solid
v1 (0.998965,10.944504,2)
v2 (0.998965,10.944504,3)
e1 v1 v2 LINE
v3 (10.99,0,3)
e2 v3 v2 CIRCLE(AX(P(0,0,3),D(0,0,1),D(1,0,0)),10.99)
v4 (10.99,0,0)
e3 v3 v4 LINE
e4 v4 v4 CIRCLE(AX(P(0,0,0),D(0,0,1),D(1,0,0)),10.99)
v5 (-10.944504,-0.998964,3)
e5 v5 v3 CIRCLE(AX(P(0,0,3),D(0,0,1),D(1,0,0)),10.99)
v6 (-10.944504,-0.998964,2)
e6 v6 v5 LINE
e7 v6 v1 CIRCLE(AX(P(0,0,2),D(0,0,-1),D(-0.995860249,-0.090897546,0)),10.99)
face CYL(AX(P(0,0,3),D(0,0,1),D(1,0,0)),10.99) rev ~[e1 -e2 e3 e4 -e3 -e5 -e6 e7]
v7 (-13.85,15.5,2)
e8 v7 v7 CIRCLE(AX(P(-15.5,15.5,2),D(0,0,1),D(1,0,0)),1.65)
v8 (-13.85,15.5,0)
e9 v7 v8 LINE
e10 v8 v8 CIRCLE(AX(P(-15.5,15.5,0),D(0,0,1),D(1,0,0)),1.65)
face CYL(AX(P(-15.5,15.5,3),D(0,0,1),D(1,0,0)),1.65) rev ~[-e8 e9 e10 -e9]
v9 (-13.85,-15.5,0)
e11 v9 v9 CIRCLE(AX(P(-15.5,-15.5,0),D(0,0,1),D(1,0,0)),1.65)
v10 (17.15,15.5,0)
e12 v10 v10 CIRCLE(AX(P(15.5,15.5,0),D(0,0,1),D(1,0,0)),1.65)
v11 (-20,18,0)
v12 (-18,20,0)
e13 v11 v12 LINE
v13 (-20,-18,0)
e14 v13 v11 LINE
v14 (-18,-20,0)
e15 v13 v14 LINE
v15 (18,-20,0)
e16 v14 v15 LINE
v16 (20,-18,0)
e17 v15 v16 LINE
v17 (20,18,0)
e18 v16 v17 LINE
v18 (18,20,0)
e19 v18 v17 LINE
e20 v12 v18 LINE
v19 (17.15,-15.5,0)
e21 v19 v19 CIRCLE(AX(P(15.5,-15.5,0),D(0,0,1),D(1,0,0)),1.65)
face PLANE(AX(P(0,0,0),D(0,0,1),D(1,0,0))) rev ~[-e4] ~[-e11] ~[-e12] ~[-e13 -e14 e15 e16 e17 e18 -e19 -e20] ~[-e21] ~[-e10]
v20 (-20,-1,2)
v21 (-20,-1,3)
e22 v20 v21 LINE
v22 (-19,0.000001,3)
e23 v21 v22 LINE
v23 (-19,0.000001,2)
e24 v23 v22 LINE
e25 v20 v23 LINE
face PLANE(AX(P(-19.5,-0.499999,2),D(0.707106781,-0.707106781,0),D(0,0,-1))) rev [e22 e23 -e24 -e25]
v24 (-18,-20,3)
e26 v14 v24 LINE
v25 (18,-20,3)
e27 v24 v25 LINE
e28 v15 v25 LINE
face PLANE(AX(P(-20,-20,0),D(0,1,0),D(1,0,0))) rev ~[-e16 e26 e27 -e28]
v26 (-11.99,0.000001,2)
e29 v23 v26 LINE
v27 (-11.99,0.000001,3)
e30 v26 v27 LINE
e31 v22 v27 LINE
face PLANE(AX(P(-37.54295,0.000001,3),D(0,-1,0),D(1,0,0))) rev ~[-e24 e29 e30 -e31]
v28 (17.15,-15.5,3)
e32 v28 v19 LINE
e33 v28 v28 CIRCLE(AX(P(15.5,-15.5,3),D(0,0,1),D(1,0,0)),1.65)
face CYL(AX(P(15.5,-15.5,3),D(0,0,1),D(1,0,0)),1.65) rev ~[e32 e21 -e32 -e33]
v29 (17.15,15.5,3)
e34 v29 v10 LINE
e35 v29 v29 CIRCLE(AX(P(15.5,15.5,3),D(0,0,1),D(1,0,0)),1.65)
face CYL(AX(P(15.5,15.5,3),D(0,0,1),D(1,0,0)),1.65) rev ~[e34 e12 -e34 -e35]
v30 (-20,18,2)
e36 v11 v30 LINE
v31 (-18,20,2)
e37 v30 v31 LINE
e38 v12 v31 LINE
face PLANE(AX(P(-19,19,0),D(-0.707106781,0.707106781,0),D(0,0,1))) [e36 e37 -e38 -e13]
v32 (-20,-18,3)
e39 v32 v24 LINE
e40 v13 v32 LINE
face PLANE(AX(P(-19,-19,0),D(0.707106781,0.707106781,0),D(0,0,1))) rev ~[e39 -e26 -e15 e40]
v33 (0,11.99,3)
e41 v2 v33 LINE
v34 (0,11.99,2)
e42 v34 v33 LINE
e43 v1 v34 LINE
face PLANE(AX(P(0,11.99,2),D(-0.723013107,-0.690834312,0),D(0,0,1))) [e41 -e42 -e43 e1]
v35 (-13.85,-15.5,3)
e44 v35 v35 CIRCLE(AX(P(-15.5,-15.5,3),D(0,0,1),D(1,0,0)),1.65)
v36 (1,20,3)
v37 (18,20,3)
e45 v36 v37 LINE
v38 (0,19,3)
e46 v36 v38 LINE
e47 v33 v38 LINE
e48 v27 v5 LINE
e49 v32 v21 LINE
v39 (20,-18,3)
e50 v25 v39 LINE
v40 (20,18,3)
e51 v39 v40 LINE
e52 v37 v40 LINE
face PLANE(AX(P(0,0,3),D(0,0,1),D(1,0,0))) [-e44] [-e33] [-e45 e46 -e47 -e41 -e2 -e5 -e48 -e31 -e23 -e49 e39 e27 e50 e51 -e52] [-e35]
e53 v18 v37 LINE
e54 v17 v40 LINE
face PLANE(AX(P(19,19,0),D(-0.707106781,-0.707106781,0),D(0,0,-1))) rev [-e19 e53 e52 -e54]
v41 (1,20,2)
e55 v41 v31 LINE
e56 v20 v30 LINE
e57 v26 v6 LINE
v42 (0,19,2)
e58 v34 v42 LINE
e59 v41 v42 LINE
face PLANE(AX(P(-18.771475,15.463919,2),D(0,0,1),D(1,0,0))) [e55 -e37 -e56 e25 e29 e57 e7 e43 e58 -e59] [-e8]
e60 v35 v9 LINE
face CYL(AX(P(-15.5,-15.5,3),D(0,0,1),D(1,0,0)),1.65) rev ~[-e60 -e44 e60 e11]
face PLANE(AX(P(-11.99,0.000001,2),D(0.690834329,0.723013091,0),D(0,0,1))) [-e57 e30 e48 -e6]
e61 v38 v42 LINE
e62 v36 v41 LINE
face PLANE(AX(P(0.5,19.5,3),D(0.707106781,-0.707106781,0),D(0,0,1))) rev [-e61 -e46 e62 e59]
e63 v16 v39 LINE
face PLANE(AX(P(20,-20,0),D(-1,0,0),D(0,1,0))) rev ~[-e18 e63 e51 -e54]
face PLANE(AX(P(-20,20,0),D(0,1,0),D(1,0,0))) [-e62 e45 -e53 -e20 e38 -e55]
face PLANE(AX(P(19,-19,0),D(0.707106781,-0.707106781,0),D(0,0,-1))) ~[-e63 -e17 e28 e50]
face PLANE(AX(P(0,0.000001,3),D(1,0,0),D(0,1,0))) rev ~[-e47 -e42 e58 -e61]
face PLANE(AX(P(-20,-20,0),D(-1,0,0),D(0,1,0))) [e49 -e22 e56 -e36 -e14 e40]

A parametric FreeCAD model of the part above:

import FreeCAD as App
import Part
import Sketcher

V = App.Vector
Q = App.Units.Quantity


def edges_at(feature, points):
    """Names of the edges that pass closest to the given points."""
    edges = feature.Shape.Edges
    near = lambda p: min(range(len(edges)), key=lambda i: edges[i].distToShape(Part.Vertex(*p))[0])
    return sorted({f"Edge{near(p) + 1}" for p in points})

doc = App.newDocument("Part")
params = doc.addObject("Spreadsheet::Sheet", "Params")
for row, (alias, value) in enumerate([
    ("sketch1_width", "40 mm"),
    ("pad1_length", "3 mm"),
    ("sketch2_diameter", "3.3 mm"),
    ("sketch2_diameter2", "21.98 mm"),
    ("pocket1_length", "5 mm"),
    ("pocket2_length", "1 mm"),
    ("chamfer_size", "2 mm"),
    ("chamfer2_size", "1 mm"),
], start=1):
    params.set(f"A{row}", alias)
    params.set(f"B{row}", "=" + value)
    params.setAlias(f"B{row}", alias)

body = doc.addObject("PartDesign::Body", "Body")

sketch1 = body.newObject("Sketcher::SketchObject", "Sketch")
sketch1.AttachmentSupport = (doc.getObject("XY_Plane"), [""])
sketch1.MapMode = "FlatFace"
sketch1.addGeometry([
    Part.LineSegment(V(-20, 20, 0), V(-20, -20, 0)),
    Part.LineSegment(V(-20, -20, 0), V(20, -20, 0)),
    Part.LineSegment(V(20, -20, 0), V(20, 20, 0)),
    Part.LineSegment(V(20, 20, 0), V(-20, 20, 0)),
], False)
sketch1.addConstraint([
    Sketcher.Constraint("Coincident", 0, 2, 1, 1),
    Sketcher.Constraint("Coincident", 1, 2, 2, 1),
    Sketcher.Constraint("Coincident", 2, 2, 3, 1),
    Sketcher.Constraint("Coincident", 3, 2, 0, 1),
    Sketcher.Constraint("Vertical", 0),
    Sketcher.Constraint("Horizontal", 1),
    Sketcher.Constraint("Vertical", 2),
    Sketcher.Constraint("Horizontal", 3),
    Sketcher.Constraint("Symmetric", 0, 2, 2, 2, -1, 1),
    Sketcher.Constraint("Equal", 3, 0),
    Sketcher.Constraint("DistanceX", 1, 1, 1, 2, Q("40 mm")),
])
sketch1.setExpression("Constraints[10]", "Params.sketch1_width")
pad1 = body.newObject("PartDesign::Pad", "Pad")
pad1.Profile = sketch1
pad1.setExpression("Length", "Params.pad1_length")

sketch2 = body.newObject("Sketcher::SketchObject", "Sketch001")
sketch2.AttachmentSupport = (doc.getObject("XY_Plane"), [""])
sketch2.MapMode = "FlatFace"
sketch2.AttachmentOffset = App.Placement(V(0, 0, 3), App.Rotation())
sketch2.addGeometry([
    Part.Circle(V(0, 0, 0), V(0, 0, 1), 11),
    Part.Circle(V(-15.5, 15.5, 0), V(0, 0, 1), 1.6),
    Part.Circle(V(15.5, 15.5, 0), V(0, 0, 1), 1.6),
    Part.Circle(V(-15.5, -15.5, 0), V(0, 0, 1), 1.6),
    Part.Circle(V(15.5, -15.5, 0), V(0, 0, 1), 1.6),
], False)
sketch2.addConstraint([
    Sketcher.Constraint("Coincident", 0, 3, -1, 1),
    Sketcher.Constraint("Equal", 1, 2),
    Sketcher.Constraint("Equal", 2, 3),
    Sketcher.Constraint("Equal", 3, 4),
    Sketcher.Constraint("Symmetric", 2, 3, 3, 3, -1, 1),
    Sketcher.Constraint("Symmetric", 1, 3, 4, 3, -1, 1),
    Sketcher.Constraint("Symmetric", 1, 3, 2, 3, -2),
    Sketcher.Constraint("Diameter", 1, Q("3.3 mm")),
    Sketcher.Constraint("Diameter", 0, Q("21.98 mm")),
    Sketcher.Constraint("DistanceX", 1, 3, 2, 3, Q("31 mm")),
    Sketcher.Constraint("DistanceY", 3, 3, 1, 3, Q("31 mm")),
])
sketch2.setExpression("Constraints[7]", "Params.sketch2_diameter")
sketch2.setExpression("Constraints[8]", "Params.sketch2_diameter2")
pocket1 = body.newObject("PartDesign::Pocket", "Pocket")
pocket1.Profile = sketch2
pocket1.setExpression("Length", "Params.pocket1_length")

sketch3 = body.newObject("Sketcher::SketchObject", "Sketch002")
sketch3.AttachmentSupport = (doc.getObject("XY_Plane"), [""])
sketch3.MapMode = "FlatFace"
sketch3.AttachmentOffset = App.Placement(V(0, 0, 3), App.Rotation())
sketch3.addGeometry([
    Part.LineSegment(V(-38, 31, 0), V(-38, 0, 0)),
    Part.LineSegment(V(-38, 0, 0), V(0, 0, 0)),
    Part.LineSegment(V(0, 0, 0), V(0, 31, 0)),
    Part.LineSegment(V(0, 31, 0), V(-38, 31, 0)),
], False)
sketch3.addConstraint([
    Sketcher.Constraint("Coincident", 0, 2, 1, 1),
    Sketcher.Constraint("Coincident", 1, 2, 2, 1),
    Sketcher.Constraint("Coincident", 2, 2, 3, 1),
    Sketcher.Constraint("Coincident", 3, 2, 0, 1),
    Sketcher.Constraint("Vertical", 0),
    Sketcher.Constraint("Horizontal", 1),
    Sketcher.Constraint("Vertical", 2),
    Sketcher.Constraint("Horizontal", 3),
    Sketcher.Constraint("Coincident", 1, 2, -1, 1),
    Sketcher.Constraint("DistanceX", 1, 1, 1, 2, Q("37.54295 mm")),
    Sketcher.Constraint("DistanceY", 0, 2, 0, 1, Q("30.927837 mm")),
])
pocket2 = body.newObject("PartDesign::Pocket", "Pocket001")
pocket2.Profile = sketch3
pocket2.setExpression("Length", "Params.pocket2_length")
doc.recompute()

chamfer = body.newObject("PartDesign::Chamfer", "Chamfer")
chamfer.Base = (pocket2, edges_at(pocket2, [
    (-20, -20, 1.5),
    (20, -20, 1.5),
    (20, 20, 1.5),
    (-20, 20, 1),
]))
chamfer.setExpression("Size", "Params.chamfer_size")
doc.recompute()

chamfer2 = body.newObject("PartDesign::Chamfer", "Chamfer001")
chamfer2.Base = (chamfer, edges_at(chamfer, [
    (-10.99, 0, 2.5),
    (0, 20, 2.5),
    (0, 10.99, 2.5),
    (-20, 0, 2.5),
]))
chamfer2.setExpression("Size", "Params.chamfer2_size")

doc.recompute()
